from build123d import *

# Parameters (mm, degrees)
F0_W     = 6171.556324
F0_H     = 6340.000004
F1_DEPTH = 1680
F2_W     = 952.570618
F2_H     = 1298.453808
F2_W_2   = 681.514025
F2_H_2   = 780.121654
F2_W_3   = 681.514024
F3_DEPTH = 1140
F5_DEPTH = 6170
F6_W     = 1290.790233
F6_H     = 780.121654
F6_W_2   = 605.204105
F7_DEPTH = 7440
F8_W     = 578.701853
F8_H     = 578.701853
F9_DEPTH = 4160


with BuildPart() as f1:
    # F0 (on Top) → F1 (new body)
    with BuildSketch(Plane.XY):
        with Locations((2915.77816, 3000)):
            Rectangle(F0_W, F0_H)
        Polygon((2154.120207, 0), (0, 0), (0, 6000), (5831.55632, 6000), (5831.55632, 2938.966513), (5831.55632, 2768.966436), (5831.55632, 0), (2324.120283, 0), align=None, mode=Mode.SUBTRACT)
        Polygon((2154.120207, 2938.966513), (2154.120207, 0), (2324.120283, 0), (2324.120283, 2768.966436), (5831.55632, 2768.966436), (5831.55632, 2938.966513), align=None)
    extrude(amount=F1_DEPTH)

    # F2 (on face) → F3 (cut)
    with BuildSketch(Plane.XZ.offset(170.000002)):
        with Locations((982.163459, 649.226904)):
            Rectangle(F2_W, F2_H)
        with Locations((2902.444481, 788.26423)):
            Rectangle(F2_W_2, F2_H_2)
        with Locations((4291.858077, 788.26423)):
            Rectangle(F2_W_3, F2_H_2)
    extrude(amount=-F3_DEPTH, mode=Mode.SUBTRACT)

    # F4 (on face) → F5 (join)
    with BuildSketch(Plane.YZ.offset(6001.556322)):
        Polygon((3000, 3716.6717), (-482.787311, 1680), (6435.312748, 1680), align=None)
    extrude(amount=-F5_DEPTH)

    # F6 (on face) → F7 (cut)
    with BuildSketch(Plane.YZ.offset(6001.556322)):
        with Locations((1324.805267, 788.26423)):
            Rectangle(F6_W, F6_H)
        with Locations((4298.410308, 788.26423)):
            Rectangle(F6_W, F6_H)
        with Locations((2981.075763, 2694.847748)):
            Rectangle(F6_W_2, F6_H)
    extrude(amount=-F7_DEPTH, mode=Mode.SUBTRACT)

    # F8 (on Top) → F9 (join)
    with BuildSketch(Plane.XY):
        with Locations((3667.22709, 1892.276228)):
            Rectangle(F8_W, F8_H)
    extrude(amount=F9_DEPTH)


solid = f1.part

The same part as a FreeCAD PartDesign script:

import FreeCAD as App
import Part
import Sketcher


def add_polygon(sketch, points):
    """Adds a closed chain of lines whose ends are joined by coincident constraints."""
    first, n = sketch.GeometryCount, len(points)
    for a, b in zip(points, points[1:] + points[:1]):
        sketch.addGeometry(Part.LineSegment(App.Vector(*a, 0), App.Vector(*b, 0)), False)
    for i in range(n):
        sketch.addConstraint(Sketcher.Constraint("Coincident", first + i, 2, first + (i + 1) % n, 1))

doc = App.newDocument("Part")
body = doc.addObject("PartDesign::Body", "Body")

# Sketch on XY plane
sketch1 = body.newObject("Sketcher::SketchObject", "Sketch")
sketch1.AttachmentSupport = (doc.getObject("XY_Plane"), [""])
sketch1.MapMode = "FlatFace"
add_polygon(sketch1, [(-170, 6170), (-170, -170), (6002, -170), (6002, 6170)])  # lines 0-3
add_polygon(sketch1, [(5832, 0), (2324, 0), (2324, 2769), (5832, 2769)])  # lines 4-7
add_polygon(sketch1, [(2154, 0), (0, 0), (0, 6000), (5832, 6000), (5832, 2939), (2154, 2939)])  # lines 8-13
sketch1.addConstraint([
    Sketcher.Constraint("Vertical", 0),
    Sketcher.Constraint("Horizontal", 1),
    Sketcher.Constraint("Vertical", 2),
    Sketcher.Constraint("Horizontal", 3),
    Sketcher.Constraint("Horizontal", 4),
    Sketcher.Constraint("Vertical", 5),
    Sketcher.Constraint("Horizontal", 6),
    Sketcher.Constraint("Vertical", 7),
    Sketcher.Constraint("Horizontal", 8),
    Sketcher.Constraint("Vertical", 9),
    Sketcher.Constraint("Horizontal", 10),
    Sketcher.Constraint("Vertical", 11),
    Sketcher.Constraint("Horizontal", 12),
    Sketcher.Constraint("Vertical", 13),
    Sketcher.Constraint("Coincident", 8, 2, -1, 1),
    Sketcher.Constraint("PointOnObject", 4, 2, -1),
    Sketcher.Constraint("Vertical", 7, 2, 10, 2),
    Sketcher.Constraint("DistanceY", 9, 1, 9, 2, 6000.0),
    Sketcher.Constraint("DistanceX", 0, 2, -1, 1, 170.000002),
    Sketcher.Constraint("DistanceY", 0, 2, -1, 1, 170.000002),
    Sketcher.Constraint("DistanceY", -1, 1, 2, 2, 6170.000002),
    Sketcher.Constraint("DistanceX", 10, 1, 10, 2, 5831.55632),
    Sketcher.Constraint("DistanceX", 1, 1, 1, 2, 6171.556324),
    Sketcher.Constraint("DistanceX", 4, 2, 4, 1, 3507.436037),
    Sketcher.Constraint("DistanceX", 8, 2, 8, 1, 2154.120207),
    Sketcher.Constraint("DistanceY", 5, 1, 5, 2, 2768.966436),
    Sketcher.Constraint("DistanceY", 11, 2, 11, 1, 3061.033487),
])
pad1 = body.newObject("PartDesign::Pad", "Pad")
pad1.Profile = sketch1
pad1.Length = 1680

# Sketch on XZ plane
sketch2 = body.newObject("Sketcher::SketchObject", "Sketch001")
sketch2.AttachmentSupport = (doc.getObject("XZ_Plane"), [""])
sketch2.MapMode = "FlatFace"
sketch2.AttachmentOffset = App.Placement(App.Vector(0, 0, 170.000002), App.Rotation())
add_polygon(sketch2, [(506, 1298), (506, 0), (1458, 0), (1458, 1298)])  # lines 0-3
add_polygon(sketch2, [(2562, 1178), (2562, 398), (3243, 398), (3243, 1178)])  # lines 4-7
add_polygon(sketch2, [(3951, 1178), (3951, 398), (4633, 398), (4633, 1178)])  # lines 8-11
sketch2.addConstraint([
    Sketcher.Constraint("Vertical", 0),
    Sketcher.Constraint("Horizontal", 1),
    Sketcher.Constraint("Vertical", 2),
    Sketcher.Constraint("Horizontal", 3),
    Sketcher.Constraint("Vertical", 4),
    Sketcher.Constraint("Horizontal", 5),
    Sketcher.Constraint("Vertical", 6),
    Sketcher.Constraint("Horizontal", 7),
    Sketcher.Constraint("Vertical", 8),
    Sketcher.Constraint("Horizontal", 9),
    Sketcher.Constraint("Vertical", 10),
    Sketcher.Constraint("Horizontal", 11),
    Sketcher.Constraint("PointOnObject", 0, 2, -1),
    Sketcher.Constraint("Horizontal", 5, 2, 8, 2),
    Sketcher.Constraint("Horizontal", 7, 2, 10, 2),
    Sketcher.Constraint("Equal", 7, 9),
    Sketcher.Constraint("DistanceX", 1, 1, 1, 2, 952.570618),
    Sketcher.Constraint("DistanceY", 0, 2, 0, 1, 1298.453808),
    Sketcher.Constraint("DistanceX", 1, 2, 4, 2, 1103.2387),
    Sketcher.Constraint("DistanceX", 5, 1, 5, 2, 681.514025),
    Sketcher.Constraint("DistanceY", 4, 2, 4, 1, 780.121654),
    Sketcher.Constraint("DistanceX", -1, 1, 0, 2, 505.87815),
    Sketcher.Constraint("DistanceX", -1, 1, 9, 2, 4632.615089),
    Sketcher.Constraint("DistanceY", 6, 2, 2, 2, 120.128751),
])
pocket1 = body.newObject("PartDesign::Pocket", "Pocket")
pocket1.Profile = sketch2
pocket1.Length = 1140

# Sketch on YZ plane
sketch3 = body.newObject("Sketcher::SketchObject", "Sketch002")
sketch3.AttachmentSupport = (doc.getObject("YZ_Plane"), [""])
sketch3.MapMode = "FlatFace"
sketch3.AttachmentOffset = App.Placement(App.Vector(0, 0, 6001.556322), App.Rotation())
add_polygon(sketch3, [(3000, 3717), (-483, 1680), (6435, 1680)])  # lines 0-2
sketch3.addConstraint([
    Sketcher.Constraint("Horizontal", 1),
    Sketcher.Constraint("DistanceY", -1, 1, 0, 2, 1680.0),
    Sketcher.Constraint("DistanceX", -1, 1, 2, 2, 3000.0),
    Sketcher.Constraint("DistanceX", 1, 1, 1, 2, 6918.100059),
    Sketcher.Constraint("DistanceY", -1, 1, 2, 2, 3716.6717),
    Sketcher.Constraint("DistanceX", 0, 2, -1, 1, 482.787311),
])
pad2 = body.newObject("PartDesign::Pad", "Pad001")
pad2.Profile = sketch3
pad2.Length = 6170
pad2.Reversed = True

# Sketch on YZ plane
sketch4 = body.newObject("Sketcher::SketchObject", "Sketch003")
sketch4.AttachmentSupport = (doc.getObject("YZ_Plane"), [""])
sketch4.MapMode = "FlatFace"
sketch4.AttachmentOffset = App.Placement(App.Vector(0, 0, 6001.556322), App.Rotation())
add_polygon(sketch4, [(679, 1178), (679, 398), (1970, 398), (1970, 1178)])  # lines 0-3
add_polygon(sketch4, [(3653, 1178), (3653, 398), (4944, 398), (4944, 1178)])  # lines 4-7
add_polygon(sketch4, [(2678, 3085), (2678, 2305), (3284, 2305), (3284, 3085)])  # lines 8-11
sketch4.addConstraint([
    Sketcher.Constraint("Vertical", 0),
    Sketcher.Constraint("Horizontal", 1),
    Sketcher.Constraint("Vertical", 2),
    Sketcher.Constraint("Horizontal", 3),
    Sketcher.Constraint("Vertical", 4),
    Sketcher.Constraint("Horizontal", 5),
    Sketcher.Constraint("Vertical", 6),
    Sketcher.Constraint("Horizontal", 7),
    Sketcher.Constraint("Vertical", 8),
    Sketcher.Constraint("Horizontal", 9),
    Sketcher.Constraint("Vertical", 10),
    Sketcher.Constraint("Horizontal", 11),
    Sketcher.Constraint("Horizontal", 1, 2, 4, 2),
    Sketcher.Constraint("Horizontal", 3, 2, 6, 2),
    Sketcher.Constraint("Equal", 3, 5),
    Sketcher.Constraint("Equal", 6, 8),
    Sketcher.Constraint("DistanceX", 1, 1, 1, 2, 1290.790233),
    Sketcher.Constraint("DistanceX", 9, 1, 9, 2, 605.204105),
    Sketcher.Constraint("DistanceY", 0, 2, 0, 1, 780.121654),
    Sketcher.Constraint("DistanceX", -1, 1, 0, 2, 679.41015),
    Sketcher.Constraint("DistanceX", -1, 1, 4, 2, 3653.015192),
    Sketcher.Constraint("DistanceX", -1, 1, 8, 2, 2678.47371),
    Sketcher.Constraint("DistanceY", -1, 1, 8, 2, 2304.786921),
    Sketcher.Constraint("DistanceY", 1, 2, 8, 2, 1906.583518),
])
pocket2 = body.newObject("PartDesign::Pocket", "Pocket001")
pocket2.Profile = sketch4
pocket2.Length = 7440

# Sketch on XY plane
sketch5 = body.newObject("Sketcher::SketchObject", "Sketch004")
sketch5.AttachmentSupport = (doc.getObject("XY_Plane"), [""])
sketch5.MapMode = "FlatFace"
add_polygon(sketch5, [(3378, 2182), (3378, 1603), (3957, 1603), (3957, 2182)])  # lines 0-3
sketch5.addConstraint([
    Sketcher.Constraint("Vertical", 0),
    Sketcher.Constraint("Horizontal", 1),
    Sketcher.Constraint("Vertical", 2),
    Sketcher.Constraint("Horizontal", 3),
    Sketcher.Constraint("Equal", 3, 0),
    Sketcher.Constraint("DistanceY", -1, 1, 0, 2, 1602.925301),
    Sketcher.Constraint("DistanceX", 1, 1, 1, 2, 578.701853),
    Sketcher.Constraint("DistanceX", -1, 1, 0, 2, 3377.876164),
])
pad3 = body.newObject("PartDesign::Pad", "Pad002")
pad3.Profile = sketch5
pad3.Length = 4160

doc.recompute()
